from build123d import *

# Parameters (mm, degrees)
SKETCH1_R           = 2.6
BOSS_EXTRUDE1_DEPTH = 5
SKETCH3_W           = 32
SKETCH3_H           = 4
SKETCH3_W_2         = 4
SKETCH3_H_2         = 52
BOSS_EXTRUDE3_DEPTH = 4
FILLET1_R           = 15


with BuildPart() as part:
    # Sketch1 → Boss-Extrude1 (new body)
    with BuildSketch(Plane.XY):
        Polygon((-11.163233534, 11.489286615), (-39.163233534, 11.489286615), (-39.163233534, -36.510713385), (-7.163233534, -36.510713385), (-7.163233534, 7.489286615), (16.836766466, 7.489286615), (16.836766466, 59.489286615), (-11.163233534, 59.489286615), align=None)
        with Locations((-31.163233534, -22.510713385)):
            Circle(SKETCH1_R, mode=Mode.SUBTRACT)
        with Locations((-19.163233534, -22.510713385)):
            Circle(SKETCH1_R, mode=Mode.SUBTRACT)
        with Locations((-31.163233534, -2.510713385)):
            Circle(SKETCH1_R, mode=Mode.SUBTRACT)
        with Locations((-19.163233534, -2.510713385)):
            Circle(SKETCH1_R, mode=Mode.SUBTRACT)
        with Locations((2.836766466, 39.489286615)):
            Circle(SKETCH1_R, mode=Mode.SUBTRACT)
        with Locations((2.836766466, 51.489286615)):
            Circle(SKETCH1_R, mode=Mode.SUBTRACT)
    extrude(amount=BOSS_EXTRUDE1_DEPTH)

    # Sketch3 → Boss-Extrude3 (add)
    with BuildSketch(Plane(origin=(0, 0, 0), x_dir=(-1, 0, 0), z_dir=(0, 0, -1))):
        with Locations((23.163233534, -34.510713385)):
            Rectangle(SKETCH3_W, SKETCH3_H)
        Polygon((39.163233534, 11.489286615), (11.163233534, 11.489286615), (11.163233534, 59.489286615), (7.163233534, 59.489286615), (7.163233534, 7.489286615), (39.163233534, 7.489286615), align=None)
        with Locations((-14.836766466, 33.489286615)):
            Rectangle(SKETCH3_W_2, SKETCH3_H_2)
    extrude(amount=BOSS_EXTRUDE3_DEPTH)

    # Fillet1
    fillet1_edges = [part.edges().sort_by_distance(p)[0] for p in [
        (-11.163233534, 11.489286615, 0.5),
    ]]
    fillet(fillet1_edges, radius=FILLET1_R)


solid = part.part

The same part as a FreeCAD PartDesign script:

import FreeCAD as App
import Part
import Sketcher

V = App.Vector


def edges_at(feature, points):
    """Names of the edges that pass closest to the given points."""
    edges = feature.Shape.Edges
    near = lambda p: min(range(len(edges)), key=lambda i: edges[i].distToShape(Part.Vertex(*p))[0])
    return sorted({f"Edge{near(p) + 1}" for p in points})

doc = App.newDocument("Part")
body = doc.addObject("PartDesign::Body", "Body")

sketch1 = doc.addObject("Sketcher::SketchObject", "Sketch")
body.addObject(sketch1)
sketch1.AttachmentSupport = (doc.XY_Plane, [""])
sketch1.MapMode = "FlatFace"
sketch1.addGeometry(Part.LineSegment(V(-11.2, 11.5, 0), V(-39.2, 11.5, 0)), False)
sketch1.addGeometry(Part.LineSegment(V(-39.2, 11.5, 0), V(-39.2, -36.5, 0)), False)
sketch1.addGeometry(Part.LineSegment(V(-39.2, -36.5, 0), V(-7.2, -36.5, 0)), False)
sketch1.addGeometry(Part.LineSegment(V(-7.2, -36.5, 0), V(-7.2, 7.5, 0)), False)
sketch1.addGeometry(Part.LineSegment(V(-7.2, 7.5, 0), V(16.8, 7.5, 0)), False)
sketch1.addGeometry(Part.LineSegment(V(16.8, 7.5, 0), V(16.8, 59.5, 0)), False)
sketch1.addGeometry(Part.LineSegment(V(16.8, 59.5, 0), V(-11.2, 59.5, 0)), False)
sketch1.addGeometry(Part.LineSegment(V(-11.2, 59.5, 0), V(-11.2, 11.5, 0)), False)
sketch1.addGeometry(Part.Circle(V(-31.2, -22.5, 0), V(0, 0, 1), 2.6), False)
sketch1.addGeometry(Part.Circle(V(-19.2, -22.5, 0), V(0, 0, 1), 2.6), False)
sketch1.addGeometry(Part.Circle(V(-31.2, -2.5, 0), V(0, 0, 1), 2.6), False)
sketch1.addGeometry(Part.Circle(V(-19.2, -2.5, 0), V(0, 0, 1), 2.6), False)
sketch1.addGeometry(Part.Circle(V(2.8, 39.5, 0), V(0, 0, 1), 2.6), False)
sketch1.addGeometry(Part.Circle(V(2.8, 51.5, 0), V(0, 0, 1), 2.6), False)
sketch1.addConstraint(Sketcher.Constraint("Coincident", 0, 2, 1, 1))
sketch1.addConstraint(Sketcher.Constraint("Coincident", 1, 2, 2, 1))
sketch1.addConstraint(Sketcher.Constraint("Coincident", 2, 2, 3, 1))
sketch1.addConstraint(Sketcher.Constraint("Coincident", 3, 2, 4, 1))
sketch1.addConstraint(Sketcher.Constraint("Coincident", 4, 2, 5, 1))
sketch1.addConstraint(Sketcher.Constraint("Coincident", 5, 2, 6, 1))
sketch1.addConstraint(Sketcher.Constraint("Coincident", 6, 2, 7, 1))
sketch1.addConstraint(Sketcher.Constraint("Coincident", 7, 2, 0, 1))
sketch1.addConstraint(Sketcher.Constraint("Horizontal", 0))
sketch1.addConstraint(Sketcher.Constraint("Vertical", 1))
sketch1.addConstraint(Sketcher.Constraint("Horizontal", 2))
sketch1.addConstraint(Sketcher.Constraint("Vertical", 3))
sketch1.addConstraint(Sketcher.Constraint("Horizontal", 4))
sketch1.addConstraint(Sketcher.Constraint("Vertical", 5))
sketch1.addConstraint(Sketcher.Constraint("Horizontal", 6))
sketch1.addConstraint(Sketcher.Constraint("Vertical", 7))
sketch1.addConstraint(Sketcher.Constraint("Equal", 8, 9))
sketch1.addConstraint(Sketcher.Constraint("Equal", 9, 10))
sketch1.addConstraint(Sketcher.Constraint("Equal", 10, 11))
sketch1.addConstraint(Sketcher.Constraint("Equal", 11, 12))
sketch1.addConstraint(Sketcher.Constraint("Equal", 12, 13))
sketch1.addConstraint(Sketcher.Constraint("Horizontal", 8, 3, 9, 3))
sketch1.addConstraint(Sketcher.Constraint("Horizontal", 10, 3, 11, 3))
sketch1.addConstraint(Sketcher.Constraint("Vertical", 8, 3, 10, 3))
sketch1.addConstraint(Sketcher.Constraint("Vertical", 9, 3, 11, 3))
sketch1.addConstraint(Sketcher.Constraint("Vertical", 12, 3, 13, 3))
sketch1.addConstraint(Sketcher.Constraint("Equal", 0, 6))
sketch1.addConstraint(Sketcher.Constraint("Equal", 1, 7))
sketch1.addConstraint(Sketcher.Constraint("Diameter", 8, 5.2))
sketch1.addConstraint(Sketcher.Constraint("DistanceX", 0, 2, 0, 1, 28.0))
sketch1.addConstraint(Sketcher.Constraint("DistanceX", 2, 1, 2, 2, 32.0))
sketch1.addConstraint(Sketcher.Constraint("DistanceY", 1, 2, 1, 1, 48.0))
sketch1.addConstraint(Sketcher.Constraint("DistanceY", 3, 1, 3, 2, 44.0))
sketch1.addConstraint(Sketcher.Constraint("DistanceX", 8, 3, 9, 3, 12.0))
sketch1.addConstraint(Sketcher.Constraint("DistanceY", 8, 3, 10, 3, 20.0))
sketch1.addConstraint(Sketcher.Constraint("DistanceX", 11, 3, 12, 3, 22.0))
sketch1.addConstraint(Sketcher.Constraint("DistanceY", 11, 3, 12, 3, 42.0))
sketch1.addConstraint(Sketcher.Constraint("DistanceY", 12, 3, 13, 3, 12.0))
sketch1.addConstraint(Sketcher.Constraint("DistanceX", 0, 2, 10, 3, 8.0))
sketch1.addConstraint(Sketcher.Constraint("DistanceY", 10, 3, 0, 2, 14.0))
sketch1.addConstraint(Sketcher.Constraint("DistanceX", 8, 3, -1, 1, 31.163234))
sketch1.addConstraint(Sketcher.Constraint("DistanceY", 8, 3, -1, 1, 22.510713))
pad1 = doc.addObject("PartDesign::Pad", "Pad")
body.addObject(pad1)
pad1.Profile = sketch1
pad1.Length = 5

sketch2 = doc.addObject("Sketcher::SketchObject", "Sketch001")
body.addObject(sketch2)
sketch2.AttachmentSupport = (doc.XY_Plane, [""])
sketch2.MapMode = "FlatFace"
sketch2.addGeometry(Part.LineSegment(V(-7.2, -32.5, 0), V(-7.2, -36.5, 0)), False)
sketch2.addGeometry(Part.LineSegment(V(-7.2, -36.5, 0), V(-39.2, -36.5, 0)), False)
sketch2.addGeometry(Part.LineSegment(V(-39.2, -36.5, 0), V(-39.2, -32.5, 0)), False)
sketch2.addGeometry(Part.LineSegment(V(-39.2, -32.5, 0), V(-7.2, -32.5, 0)), False)
sketch2.addGeometry(Part.LineSegment(V(-39.2, 11.5, 0), V(-11.2, 11.5, 0)), False)
sketch2.addGeometry(Part.LineSegment(V(-11.2, 11.5, 0), V(-11.2, 59.5, 0)), False)
sketch2.addGeometry(Part.LineSegment(V(-11.2, 59.5, 0), V(-7.2, 59.5, 0)), False)
sketch2.addGeometry(Part.LineSegment(V(-7.2, 59.5, 0), V(-7.2, 7.5, 0)), False)
sketch2.addGeometry(Part.LineSegment(V(-7.2, 7.5, 0), V(-39.2, 7.5, 0)), False)
sketch2.addGeometry(Part.LineSegment(V(-39.2, 7.5, 0), V(-39.2, 11.5, 0)), False)
sketch2.addGeometry(Part.LineSegment(V(16.8, 59.5, 0), V(16.8, 7.5, 0)), False)
sketch2.addGeometry(Part.LineSegment(V(16.8, 7.5, 0), V(12.8, 7.5, 0)), False)
sketch2.addGeometry(Part.LineSegment(V(12.8, 7.5, 0), V(12.8, 59.5, 0)), False)
sketch2.addGeometry(Part.LineSegment(V(12.8, 59.5, 0), V(16.8, 59.5, 0)), False)
sketch2.addConstraint(Sketcher.Constraint("Coincident", 0, 2, 1, 1))
sketch2.addConstraint(Sketcher.Constraint("Coincident", 1, 2, 2, 1))
sketch2.addConstraint(Sketcher.Constraint("Coincident", 2, 2, 3, 1))
sketch2.addConstraint(Sketcher.Constraint("Coincident", 3, 2, 0, 1))
sketch2.addConstraint(Sketcher.Constraint("Coincident", 4, 2, 5, 1))
sketch2.addConstraint(Sketcher.Constraint("Coincident", 5, 2, 6, 1))
sketch2.addConstraint(Sketcher.Constraint("Coincident", 6, 2, 7, 1))
sketch2.addConstraint(Sketcher.Constraint("Coincident", 7, 2, 8, 1))
sketch2.addConstraint(Sketcher.Constraint("Coincident", 8, 2, 9, 1))
sketch2.addConstraint(Sketcher.Constraint("Coincident", 9, 2, 4, 1))
sketch2.addConstraint(Sketcher.Constraint("Coincident", 10, 2, 11, 1))
sketch2.addConstraint(Sketcher.Constraint("Coincident", 11, 2, 12, 1))
sketch2.addConstraint(Sketcher.Constraint("Coincident", 12, 2, 13, 1))
sketch2.addConstraint(Sketcher.Constraint("Coincident", 13, 2, 10, 1))
sketch2.addConstraint(Sketcher.Constraint("Vertical", 0))
sketch2.addConstraint(Sketcher.Constraint("Horizontal", 1))
sketch2.addConstraint(Sketcher.Constraint("Vertical", 2))
sketch2.addConstraint(Sketcher.Constraint("Horizontal", 3))
sketch2.addConstraint(Sketcher.Constraint("Horizontal", 4))
sketch2.addConstraint(Sketcher.Constraint("Vertical", 5))
sketch2.addConstraint(Sketcher.Constraint("Horizontal", 6))
sketch2.addConstraint(Sketcher.Constraint("Vertical", 7))
sketch2.addConstraint(Sketcher.Constraint("Horizontal", 8))
sketch2.addConstraint(Sketcher.Constraint("Vertical", 9))
sketch2.addConstraint(Sketcher.Constraint("Vertical", 10))
sketch2.addConstraint(Sketcher.Constraint("Horizontal", 11))
sketch2.addConstraint(Sketcher.Constraint("Vertical", 12))
sketch2.addConstraint(Sketcher.Constraint("Horizontal", 13))
sketch2.addConstraint(Sketcher.Constraint("Horizontal", 8, 2, 10, 2))
sketch2.addConstraint(Sketcher.Constraint("Horizontal", 6, 2, 12, 2))
sketch2.addConstraint(Sketcher.Constraint("Vertical", 3, 2, 6, 2))
sketch2.addConstraint(Sketcher.Constraint("Vertical", 2, 2, 8, 2))
sketch2.addConstraint(Sketcher.Constraint("Equal", 6, 11))
sketch2.addConstraint(Sketcher.Constraint("Equal", 13, 0))
sketch2.addConstraint(Sketcher.Constraint("Equal", 2, 9))
sketch2.addConstraint(Sketcher.Constraint("DistanceX", 1, 2, 1, 1, 32.0))
sketch2.addConstraint(Sketcher.Constraint("DistanceX", 4, 1, 4, 2, 28.0))
sketch2.addConstraint(Sketcher.Constraint("DistanceY", 5, 1, 5, 2, 48.0))
sketch2.addConstraint(Sketcher.Constraint("DistanceY", 3, 2, 4, 2, 44.0))
sketch2.addConstraint(Sketcher.Constraint("DistanceX", 7, 2, 10, 2, 24.0))
sketch2.addConstraint(Sketcher.Constraint("DistanceX", 0, 2, -1, 1, 7.163234))
sketch2.addConstraint(Sketcher.Constraint("DistanceY", 0, 2, -1, 1, 36.510713))
pad2 = doc.addObject("PartDesign::Pad", "Pad001")
body.addObject(pad2)
pad2.Profile = sketch2
pad2.Length = 4
pad2.Reversed = True
doc.recompute()

fillet = doc.addObject("PartDesign::Fillet", "Fillet")
body.addObject(fillet)
fillet.Base = (pad2, edges_at(pad2, [(-11.163, 11.489, 0.5)]))
fillet.Radius = 15

doc.recompute()
